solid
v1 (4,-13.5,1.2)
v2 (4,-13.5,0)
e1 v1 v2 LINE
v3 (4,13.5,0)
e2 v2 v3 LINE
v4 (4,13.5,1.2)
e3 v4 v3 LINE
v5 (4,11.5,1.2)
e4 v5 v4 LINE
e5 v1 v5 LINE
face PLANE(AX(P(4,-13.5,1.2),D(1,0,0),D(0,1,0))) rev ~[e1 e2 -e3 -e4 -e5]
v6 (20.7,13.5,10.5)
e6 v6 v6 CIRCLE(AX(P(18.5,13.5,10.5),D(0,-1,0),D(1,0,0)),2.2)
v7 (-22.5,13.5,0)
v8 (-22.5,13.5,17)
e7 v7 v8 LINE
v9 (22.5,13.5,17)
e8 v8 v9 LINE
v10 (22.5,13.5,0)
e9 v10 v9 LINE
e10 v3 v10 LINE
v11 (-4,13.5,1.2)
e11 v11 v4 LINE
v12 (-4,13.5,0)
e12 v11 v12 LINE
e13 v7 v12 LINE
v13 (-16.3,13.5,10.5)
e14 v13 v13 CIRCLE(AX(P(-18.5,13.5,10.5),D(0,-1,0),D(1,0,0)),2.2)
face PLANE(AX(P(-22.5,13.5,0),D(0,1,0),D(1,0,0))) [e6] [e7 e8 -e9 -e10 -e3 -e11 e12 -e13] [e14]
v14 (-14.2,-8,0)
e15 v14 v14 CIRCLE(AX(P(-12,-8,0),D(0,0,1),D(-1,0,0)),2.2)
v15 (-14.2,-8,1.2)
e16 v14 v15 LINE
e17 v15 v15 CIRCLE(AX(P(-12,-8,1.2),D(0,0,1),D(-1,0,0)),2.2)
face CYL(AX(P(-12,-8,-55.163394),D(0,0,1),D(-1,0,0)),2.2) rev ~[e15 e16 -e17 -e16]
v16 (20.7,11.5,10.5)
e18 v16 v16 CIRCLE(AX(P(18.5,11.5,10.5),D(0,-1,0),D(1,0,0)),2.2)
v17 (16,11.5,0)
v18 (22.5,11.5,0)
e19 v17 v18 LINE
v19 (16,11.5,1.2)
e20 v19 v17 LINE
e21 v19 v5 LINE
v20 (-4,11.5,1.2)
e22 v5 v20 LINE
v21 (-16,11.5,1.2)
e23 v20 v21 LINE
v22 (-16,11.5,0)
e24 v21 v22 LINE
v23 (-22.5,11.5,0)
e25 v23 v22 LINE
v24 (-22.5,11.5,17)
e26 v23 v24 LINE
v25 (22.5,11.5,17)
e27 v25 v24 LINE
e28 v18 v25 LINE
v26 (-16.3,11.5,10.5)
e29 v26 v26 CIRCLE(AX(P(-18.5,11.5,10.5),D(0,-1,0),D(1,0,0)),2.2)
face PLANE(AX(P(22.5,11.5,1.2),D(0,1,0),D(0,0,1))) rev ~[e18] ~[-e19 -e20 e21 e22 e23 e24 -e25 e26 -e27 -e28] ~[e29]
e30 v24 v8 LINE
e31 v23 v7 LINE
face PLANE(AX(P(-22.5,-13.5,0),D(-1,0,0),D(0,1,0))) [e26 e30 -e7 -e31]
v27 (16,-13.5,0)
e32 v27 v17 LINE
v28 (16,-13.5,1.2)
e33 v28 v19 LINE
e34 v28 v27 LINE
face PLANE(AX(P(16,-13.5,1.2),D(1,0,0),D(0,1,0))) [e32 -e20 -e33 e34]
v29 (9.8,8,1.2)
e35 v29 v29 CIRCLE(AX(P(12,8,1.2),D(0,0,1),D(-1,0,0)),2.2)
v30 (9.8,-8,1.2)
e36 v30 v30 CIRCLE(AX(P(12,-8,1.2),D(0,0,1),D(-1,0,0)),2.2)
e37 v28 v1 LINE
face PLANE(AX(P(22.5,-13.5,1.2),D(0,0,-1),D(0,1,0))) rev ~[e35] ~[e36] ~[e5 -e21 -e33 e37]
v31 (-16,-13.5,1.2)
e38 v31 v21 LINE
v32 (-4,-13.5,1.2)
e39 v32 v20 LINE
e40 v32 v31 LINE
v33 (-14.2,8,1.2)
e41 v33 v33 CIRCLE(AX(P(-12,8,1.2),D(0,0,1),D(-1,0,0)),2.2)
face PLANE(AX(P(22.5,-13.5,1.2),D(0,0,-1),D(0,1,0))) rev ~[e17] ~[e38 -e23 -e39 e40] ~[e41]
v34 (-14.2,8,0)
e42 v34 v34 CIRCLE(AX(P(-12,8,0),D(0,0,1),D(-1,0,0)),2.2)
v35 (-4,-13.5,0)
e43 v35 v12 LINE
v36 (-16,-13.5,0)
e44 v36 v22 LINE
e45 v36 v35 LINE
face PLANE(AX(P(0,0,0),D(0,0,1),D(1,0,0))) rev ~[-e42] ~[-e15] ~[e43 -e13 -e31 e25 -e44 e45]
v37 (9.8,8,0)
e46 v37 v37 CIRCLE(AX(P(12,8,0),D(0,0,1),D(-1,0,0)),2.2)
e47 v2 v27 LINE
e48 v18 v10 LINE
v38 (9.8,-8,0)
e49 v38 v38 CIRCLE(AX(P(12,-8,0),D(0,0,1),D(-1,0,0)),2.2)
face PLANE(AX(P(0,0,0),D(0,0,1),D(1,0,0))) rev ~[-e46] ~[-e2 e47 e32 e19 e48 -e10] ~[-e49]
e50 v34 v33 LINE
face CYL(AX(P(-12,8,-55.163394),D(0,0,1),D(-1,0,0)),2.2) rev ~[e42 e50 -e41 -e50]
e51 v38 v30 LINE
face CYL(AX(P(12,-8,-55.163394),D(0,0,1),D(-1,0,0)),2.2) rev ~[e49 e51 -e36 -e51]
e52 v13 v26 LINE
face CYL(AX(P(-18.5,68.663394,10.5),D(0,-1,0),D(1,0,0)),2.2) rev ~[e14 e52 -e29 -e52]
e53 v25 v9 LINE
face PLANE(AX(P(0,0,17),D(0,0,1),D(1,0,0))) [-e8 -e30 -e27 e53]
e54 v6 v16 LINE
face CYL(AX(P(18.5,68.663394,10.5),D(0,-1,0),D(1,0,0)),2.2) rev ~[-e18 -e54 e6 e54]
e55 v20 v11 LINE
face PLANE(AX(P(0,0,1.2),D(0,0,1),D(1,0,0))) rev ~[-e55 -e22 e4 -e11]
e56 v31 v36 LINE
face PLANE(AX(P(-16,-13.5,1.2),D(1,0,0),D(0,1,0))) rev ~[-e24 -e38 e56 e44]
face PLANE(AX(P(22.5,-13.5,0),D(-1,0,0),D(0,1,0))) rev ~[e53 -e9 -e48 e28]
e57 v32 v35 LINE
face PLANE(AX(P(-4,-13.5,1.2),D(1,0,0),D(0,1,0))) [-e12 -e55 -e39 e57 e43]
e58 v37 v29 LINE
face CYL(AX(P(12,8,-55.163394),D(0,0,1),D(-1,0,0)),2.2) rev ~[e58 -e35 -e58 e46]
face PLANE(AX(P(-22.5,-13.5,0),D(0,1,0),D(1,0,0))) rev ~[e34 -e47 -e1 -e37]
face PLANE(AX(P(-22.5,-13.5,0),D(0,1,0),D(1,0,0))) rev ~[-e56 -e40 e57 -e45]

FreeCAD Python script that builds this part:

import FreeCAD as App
import Part
import Sketcher

V = App.Vector


def add_polygon(sketch, points):
    """Adds a closed chain of lines whose ends are joined by coincident constraints."""
    first, n = sketch.GeometryCount, len(points)
    for a, b in zip(points, points[1:] + points[:1]):
        sketch.addGeometry(Part.LineSegment(App.Vector(*a, 0), App.Vector(*b, 0)), False)
    for i in range(n):
        sketch.addConstraint(Sketcher.Constraint("Coincident", first + i, 2, first + (i + 1) % n, 1))

doc = App.newDocument("Part")
body = doc.addObject("PartDesign::Body", "Body")

sketch1 = body.newObject("Sketcher::SketchObject", "Sketch")
sketch1.AttachmentSupport = (doc.getObject("XY_Plane"), [""])
sketch1.MapMode = "FlatFace"
add_polygon(sketch1, [(-22, 14), (-22, -14), (22, -14), (22, 14)])
sketch1.addConstraint(Sketcher.Constraint("Vertical", 0))
sketch1.addConstraint(Sketcher.Constraint("Horizontal", 1))
sketch1.addConstraint(Sketcher.Constraint("Vertical", 2))
sketch1.addConstraint(Sketcher.Constraint("Horizontal", 3))
sketch1.addConstraint(Sketcher.Constraint("Symmetric", 0, 2, 2, 2, -1, 1))
sketch1.addConstraint(Sketcher.Constraint("DistanceX", 1, 1, 1, 2, 45.0))
sketch1.addConstraint(Sketcher.Constraint("DistanceY", 0, 2, 0, 1, 27.0))
pad1 = body.newObject("PartDesign::Pad", "Pad")
pad1.Profile = sketch1
pad1.Length = 17

sketch2 = body.newObject("Sketcher::SketchObject", "Sketch001")
sketch2.AttachmentSupport = (doc.getObject("YZ_Plane"), [""])
sketch2.MapMode = "FlatFace"
sketch2.AttachmentOffset = App.Placement(V(0, 0, 22.5), App.Rotation())
add_polygon(sketch2, [(-14, 17), (-14, 1), (12, 1), (12, 17)])
sketch2.addConstraint(Sketcher.Constraint("Vertical", 0))
sketch2.addConstraint(Sketcher.Constraint("Horizontal", 1))
sketch2.addConstraint(Sketcher.Constraint("Vertical", 2))
sketch2.addConstraint(Sketcher.Constraint("Horizontal", 3))
sketch2.addConstraint(Sketcher.Constraint("DistanceX", 1, 1, 1, 2, 25.0))
sketch2.addConstraint(Sketcher.Constraint("DistanceY", 0, 2, 0, 1, 15.8))
sketch2.addConstraint(Sketcher.Constraint("DistanceY", -1, 1, 2, 2, 17.0))
sketch2.addConstraint(Sketcher.Constraint("DistanceX", 0, 2, -1, 1, 13.5))
pocket1 = body.newObject("PartDesign::Pocket", "Pocket")
pocket1.Profile = sketch2
pocket1.Type = "ThroughAll"

sketch3 = body.newObject("Sketcher::SketchObject", "Sketch002")
sketch3.AttachmentSupport = (doc.getObject("XY_Plane"), [""])
sketch3.MapMode = "FlatFace"
sketch3.AttachmentOffset = App.Placement(V(0, 0, 1.2), App.Rotation())
add_polygon(sketch3, [(-4, 14), (-4, -14), (4, -14), (4, 14)])
sketch3.addConstraint(Sketcher.Constraint("Vertical", 0))
sketch3.addConstraint(Sketcher.Constraint("Horizontal", 1))
sketch3.addConstraint(Sketcher.Constraint("Vertical", 2))
sketch3.addConstraint(Sketcher.Constraint("Horizontal", 3))
sketch3.addConstraint(Sketcher.Constraint("Symmetric", 0, 2, 2, 2, -1, 1))
sketch3.addConstraint(Sketcher.Constraint("DistanceX", 1, 1, 1, 2, 8.0))
sketch3.addConstraint(Sketcher.Constraint("DistanceY", 0, 2, 0, 1, 27.0))
pocket2 = body.newObject("PartDesign::Pocket", "Pocket001")
pocket2.Profile = sketch3
pocket2.Type = "ThroughAll"

sketch4 = body.newObject("Sketcher::SketchObject", "Sketch003")
sketch4.AttachmentSupport = (doc.getObject("XY_Plane"), [""])
sketch4.MapMode = "FlatFace"
sketch4.addGeometry(Part.Circle(V(-12, -8, 0), V(0, 0, 1), 2.2), False)
sketch4.addGeometry(Part.Circle(V(12, -8, 0), V(0, 0, 1), 2.2), False)
sketch4.addGeometry(Part.Circle(V(12, 8, 0), V(0, 0, 1), 2.2), False)
sketch4.addGeometry(Part.Circle(V(-12, 8, 0), V(0, 0, 1), 2.2), False)
sketch4.addConstraint(Sketcher.Constraint("Equal", 0, 1))
sketch4.addConstraint(Sketcher.Constraint("Equal", 1, 2))
sketch4.addConstraint(Sketcher.Constraint("Equal", 2, 3))
sketch4.addConstraint(Sketcher.Constraint("Symmetric", 0, 3, 2, 3, -1, 1))
sketch4.addConstraint(Sketcher.Constraint("Symmetric", 1, 3, 3, 3, -1, 1))
sketch4.addConstraint(Sketcher.Constraint("Symmetric", 0, 3, 1, 3, -2))
sketch4.addConstraint(Sketcher.Constraint("Diameter", 0, 4.4))
sketch4.addConstraint(Sketcher.Constraint("DistanceX", 0, 3, -1, 1, 12.0))
sketch4.addConstraint(Sketcher.Constraint("DistanceY", 0, 3, -1, 1, 8.0))
doc.recompute()
hole = body.newObject("PartDesign::Hole", "Hole")
hole.Profile = sketch4
hole.ThreadType = "None"
hole.Diameter = 4.4
hole.DepthType = "ThroughAll"
hole.Reversed = True

sketch5 = body.newObject("Sketcher::SketchObject", "Sketch004")
sketch5.AttachmentSupport = (doc.getObject("XZ_Plane"), [""])
sketch5.MapMode = "FlatFace"
sketch5.AttachmentOffset = App.Placement(V(0, 0, -13.5), App.Rotation())
sketch5.addGeometry(Part.Circle(V(-18.5, 10.5, 0), V(0, 0, 1), 2.2), False)
sketch5.addGeometry(Part.Circle(V(18.5, 10.5, 0), V(0, 0, 1), 2.2), False)
sketch5.addConstraint(Sketcher.Constraint("Equal", 0, 1))
sketch5.addConstraint(Sketcher.Constraint("Symmetric", 0, 3, 1, 3, -2))
sketch5.addConstraint(Sketcher.Constraint("Diameter", 0, 4.4))
sketch5.addConstraint(Sketcher.Constraint("DistanceX", 0, 3, 1, 3, 37.0))
sketch5.addConstraint(Sketcher.Constraint("DistanceY", -1, 1, 0, 3, 10.5))
doc.recompute()
hole2 = body.newObject("PartDesign::Hole", "Hole001")
hole2.Profile = sketch5
hole2.ThreadType = "None"
hole2.Diameter = 4.4
hole2.DepthType = "ThroughAll"
hole2.Reversed = True

sketch6 = body.newObject("Sketcher::SketchObject", "Sketch005")
sketch6.AttachmentSupport = (doc.getObject("XY_Plane"), [""])
sketch6.MapMode = "FlatFace"
sketch6.AttachmentOffset = App.Placement(V(0, 0, 1.2), App.Rotation())
add_polygon(sketch6, [(-22, 12), (-22, -14), (-16, -14), (-16, 12)])
add_polygon(sketch6, [(16, 12), (16, -14), (22, -14), (22, 12)])
sketch6.addConstraint(Sketcher.Constraint("Vertical", 0))
sketch6.addConstraint(Sketcher.Constraint("Horizontal", 1))
sketch6.addConstraint(Sketcher.Constraint("Vertical", 2))
sketch6.addConstraint(Sketcher.Constraint("Horizontal", 3))
sketch6.addConstraint(Sketcher.Constraint("Vertical", 4))
sketch6.addConstraint(Sketcher.Constraint("Horizontal", 5))
sketch6.addConstraint(Sketcher.Constraint("Vertical", 6))
sketch6.addConstraint(Sketcher.Constraint("Horizontal", 7))
sketch6.addConstraint(Sketcher.Constraint("Symmetric", 1, 2, 4, 2, -2))
sketch6.addConstraint(Sketcher.Constraint("Symmetric", 3, 2, 6, 2, -2))
sketch6.addConstraint(Sketcher.Constraint("DistanceY", 0, 2, 0, 1, 25.0))
sketch6.addConstraint(Sketcher.Constraint("DistanceX", 1, 1, 1, 2, 6.5))
sketch6.addConstraint(Sketcher.Constraint("DistanceX", 1, 2, -1, 1, 16.0))
sketch6.addConstraint(Sketcher.Constraint("DistanceY", 0, 2, -1, 1, 13.5))
pocket3 = body.newObject("PartDesign::Pocket", "Pocket002")
pocket3.Profile = sketch6
pocket3.Type = "ThroughAll"

doc.recompute()
